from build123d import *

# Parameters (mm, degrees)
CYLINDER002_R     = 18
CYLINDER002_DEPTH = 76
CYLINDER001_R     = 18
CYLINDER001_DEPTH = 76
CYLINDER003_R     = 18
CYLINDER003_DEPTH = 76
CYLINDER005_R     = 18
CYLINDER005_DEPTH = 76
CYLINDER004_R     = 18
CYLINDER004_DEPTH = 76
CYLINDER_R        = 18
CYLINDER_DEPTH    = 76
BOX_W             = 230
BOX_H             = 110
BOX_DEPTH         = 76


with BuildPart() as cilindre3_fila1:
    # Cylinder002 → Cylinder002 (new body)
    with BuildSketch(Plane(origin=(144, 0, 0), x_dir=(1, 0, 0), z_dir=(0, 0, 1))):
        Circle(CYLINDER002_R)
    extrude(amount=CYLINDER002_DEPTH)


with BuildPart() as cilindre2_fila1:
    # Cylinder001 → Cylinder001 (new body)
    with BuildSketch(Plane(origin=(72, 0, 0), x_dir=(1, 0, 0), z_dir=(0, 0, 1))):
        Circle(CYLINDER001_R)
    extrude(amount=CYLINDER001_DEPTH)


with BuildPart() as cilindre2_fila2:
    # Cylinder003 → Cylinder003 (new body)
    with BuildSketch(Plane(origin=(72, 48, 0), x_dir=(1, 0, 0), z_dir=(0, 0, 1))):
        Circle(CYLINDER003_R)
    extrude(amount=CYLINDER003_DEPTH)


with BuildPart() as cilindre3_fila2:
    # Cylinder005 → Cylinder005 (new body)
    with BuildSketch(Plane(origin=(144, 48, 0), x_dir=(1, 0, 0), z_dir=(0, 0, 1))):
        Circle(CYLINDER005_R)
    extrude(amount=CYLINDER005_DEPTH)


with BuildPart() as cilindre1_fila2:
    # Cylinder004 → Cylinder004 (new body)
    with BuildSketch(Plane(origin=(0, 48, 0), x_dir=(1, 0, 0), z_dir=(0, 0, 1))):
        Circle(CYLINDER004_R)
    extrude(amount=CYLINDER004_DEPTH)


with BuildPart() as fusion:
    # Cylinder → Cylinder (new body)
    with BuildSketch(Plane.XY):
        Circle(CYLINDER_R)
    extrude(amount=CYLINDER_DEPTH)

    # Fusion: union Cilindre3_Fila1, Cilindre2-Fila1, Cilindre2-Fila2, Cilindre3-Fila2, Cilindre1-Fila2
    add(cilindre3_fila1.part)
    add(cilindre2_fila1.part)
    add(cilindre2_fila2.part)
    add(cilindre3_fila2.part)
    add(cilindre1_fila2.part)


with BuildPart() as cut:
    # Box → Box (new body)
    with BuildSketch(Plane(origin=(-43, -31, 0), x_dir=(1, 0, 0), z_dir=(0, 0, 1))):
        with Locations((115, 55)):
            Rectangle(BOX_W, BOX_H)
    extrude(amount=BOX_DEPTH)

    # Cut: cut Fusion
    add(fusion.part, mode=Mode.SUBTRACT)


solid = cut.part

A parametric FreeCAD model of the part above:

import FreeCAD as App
import Part
import Sketcher
from FreeCAD import Vector

doc = App.newDocument("Part")
params = doc.addObject("Spreadsheet::Sheet", "Params")
for row, (alias, value) in enumerate([
    ("sketch1_diameter", "36 mm"),
    ("pad1_length", "76 mm"),
    ("sketch2_diameter", "36 mm"),
    ("pad2_length", "76 mm"),
    ("sketch3_diameter", "36 mm"),
    ("pad3_length", "76 mm"),
    ("sketch4_diameter", "36 mm"),
    ("pad4_length", "76 mm"),
    ("sketch5_diameter", "36 mm"),
    ("pad5_length", "76 mm"),
    ("sketch6_diameter", "36 mm"),
    ("pad6_length", "76 mm"),
    ("sketch7_width", "230 mm"),
    ("sketch7_height", "110 mm"),
    ("pad7_length", "76 mm"),
], start=1):
    params.set(f"A{row}", alias)
    params.set(f"B{row}", "=" + value)
    params.setAlias(f"B{row}", alias)

body = doc.addObject("PartDesign::Body", "Body")

# Sketch on XY plane
sketch1 = doc.addObject("Sketcher::SketchObject", "Sketch")
body.addObject(sketch1)
sketch1.AttachmentSupport = (doc.XY_Plane, [""])
sketch1.MapMode = "FlatFace"
sketch1.addGeometry(Part.Circle(Vector(144, 0, 0), Vector(0, 0, 1), 18), False)
sketch1.addConstraint(Sketcher.Constraint("PointOnObject", 0, 3, -1))
sketch1.addConstraint(Sketcher.Constraint("Diameter", 0, 36.0))
sketch1.addConstraint(Sketcher.Constraint("DistanceX", -1, 1, 0, 3, 144.0))
sketch1.setExpression("Constraints[1]", "Params.sketch1_diameter")
pad1 = doc.addObject("PartDesign::Pad", "Pad")
body.addObject(pad1)
pad1.Profile = sketch1
pad1.setExpression("Length", "Params.pad1_length")
body2 = doc.addObject("PartDesign::Body", "Body001")

# Sketch on XY plane
sketch2 = doc.addObject("Sketcher::SketchObject", "Sketch001")
body2.addObject(sketch2)
sketch2.AttachmentSupport = (doc.getObject("XY_Plane001"), [""])
sketch2.MapMode = "FlatFace"
sketch2.addGeometry(Part.Circle(Vector(72, 0, 0), Vector(0, 0, 1), 18), False)
sketch2.addConstraint(Sketcher.Constraint("PointOnObject", 0, 3, -1))
sketch2.addConstraint(Sketcher.Constraint("Diameter", 0, 36.0))
sketch2.addConstraint(Sketcher.Constraint("DistanceX", -1, 1, 0, 3, 72.0))
sketch2.setExpression("Constraints[1]", "Params.sketch2_diameter")
pad2 = doc.addObject("PartDesign::Pad", "Pad001")
body2.addObject(pad2)
pad2.Profile = sketch2
pad2.setExpression("Length", "Params.pad2_length")
body3 = doc.addObject("PartDesign::Body", "Body002")

# Sketch on XY plane
sketch3 = doc.addObject("Sketcher::SketchObject", "Sketch002")
body3.addObject(sketch3)
sketch3.AttachmentSupport = (doc.getObject("XY_Plane002"), [""])
sketch3.MapMode = "FlatFace"
sketch3.addGeometry(Part.Circle(Vector(72, 48, 0), Vector(0, 0, 1), 18), False)
sketch3.addConstraint(Sketcher.Constraint("Diameter", 0, 36.0))
sketch3.addConstraint(Sketcher.Constraint("DistanceX", -1, 1, 0, 3, 72.0))
sketch3.addConstraint(Sketcher.Constraint("DistanceY", -1, 1, 0, 3, 48.0))
sketch3.setExpression("Constraints[0]", "Params.sketch3_diameter")
pad3 = doc.addObject("PartDesign::Pad", "Pad002")
body3.addObject(pad3)
pad3.Profile = sketch3
pad3.setExpression("Length", "Params.pad3_length")
body4 = doc.addObject("PartDesign::Body", "Body003")

# Sketch on XY plane
sketch4 = doc.addObject("Sketcher::SketchObject", "Sketch003")
body4.addObject(sketch4)
sketch4.AttachmentSupport = (doc.getObject("XY_Plane003"), [""])
sketch4.MapMode = "FlatFace"
sketch4.addGeometry(Part.Circle(Vector(144, 48, 0), Vector(0, 0, 1), 18), False)
sketch4.addConstraint(Sketcher.Constraint("Diameter", 0, 36.0))
sketch4.addConstraint(Sketcher.Constraint("DistanceX", -1, 1, 0, 3, 144.0))
sketch4.addConstraint(Sketcher.Constraint("DistanceY", -1, 1, 0, 3, 48.0))
sketch4.setExpression("Constraints[0]", "Params.sketch4_diameter")
pad4 = doc.addObject("PartDesign::Pad", "Pad003")
body4.addObject(pad4)
pad4.Profile = sketch4
pad4.setExpression("Length", "Params.pad4_length")
body5 = doc.addObject("PartDesign::Body", "Body004")

# Sketch on XY plane
sketch5 = doc.addObject("Sketcher::SketchObject", "Sketch004")
body5.addObject(sketch5)
sketch5.AttachmentSupport = (doc.getObject("XY_Plane004"), [""])
sketch5.MapMode = "FlatFace"
sketch5.addGeometry(Part.Circle(Vector(0, 48, 0), Vector(0, 0, 1), 18), False)
sketch5.addConstraint(Sketcher.Constraint("PointOnObject", 0, 3, -2))
sketch5.addConstraint(Sketcher.Constraint("Diameter", 0, 36.0))
sketch5.addConstraint(Sketcher.Constraint("DistanceY", -1, 1, 0, 3, 48.0))
sketch5.setExpression("Constraints[1]", "Params.sketch5_diameter")
pad5 = doc.addObject("PartDesign::Pad", "Pad004")
body5.addObject(pad5)
pad5.Profile = sketch5
pad5.setExpression("Length", "Params.pad5_length")
body6 = doc.addObject("PartDesign::Body", "Body005")
body6.AllowCompound = True

# Sketch on XY plane
sketch6 = doc.addObject("Sketcher::SketchObject", "Sketch005")
body6.addObject(sketch6)
sketch6.AttachmentSupport = (doc.getObject("XY_Plane005"), [""])
sketch6.MapMode = "FlatFace"
sketch6.addGeometry(Part.Circle(Vector(0, 0, 0), Vector(0, 0, 1), 18), False)
sketch6.addConstraint(Sketcher.Constraint("Coincident", 0, 3, -1, 1))
sketch6.addConstraint(Sketcher.Constraint("Diameter", 0, 36.0))
sketch6.setExpression("Constraints[1]", "Params.sketch6_diameter")
pad6 = doc.addObject("PartDesign::Pad", "Pad005")
body6.addObject(pad6)
pad6.Profile = sketch6
pad6.setExpression("Length", "Params.pad6_length")
doc.recompute()

boolean = doc.addObject("PartDesign::Boolean", "Boolean")
body6.addObject(boolean)
boolean.Type = "Fuse"
boolean.addObjects([body])
doc.recompute()

boolean2 = doc.addObject("PartDesign::Boolean", "Boolean001")
body6.addObject(boolean2)
boolean2.Type = "Fuse"
boolean2.addObjects([body2])
doc.recompute()

boolean3 = doc.addObject("PartDesign::Boolean", "Boolean002")
body6.addObject(boolean3)
boolean3.Type = "Fuse"
boolean3.addObjects([body3])
doc.recompute()

boolean4 = doc.addObject("PartDesign::Boolean", "Boolean003")
body6.addObject(boolean4)
boolean4.Type = "Fuse"
boolean4.addObjects([body4])
doc.recompute()

boolean5 = doc.addObject("PartDesign::Boolean", "Boolean004")
body6.addObject(boolean5)
boolean5.Type = "Fuse"
boolean5.addObjects([body5])
body7 = doc.addObject("PartDesign::Body", "Body006")

# Sketch on XY plane
sketch7 = doc.addObject("Sketcher::SketchObject", "Sketch006")
body7.addObject(sketch7)
sketch7.AttachmentSupport = (doc.getObject("XY_Plane006"), [""])
sketch7.MapMode = "FlatFace"
sketch7.addGeometry(Part.LineSegment(Vector(-43, 79, 0), Vector(-43, -31, 0)), False)
sketch7.addGeometry(Part.LineSegment(Vector(-43, -31, 0), Vector(187, -31, 0)), False)
sketch7.addGeometry(Part.LineSegment(Vector(187, -31, 0), Vector(187, 79, 0)), False)
sketch7.addGeometry(Part.LineSegment(Vector(187, 79, 0), Vector(-43, 79, 0)), False)
sketch7.addConstraint(Sketcher.Constraint("Coincident", 0, 2, 1, 1))
sketch7.addConstraint(Sketcher.Constraint("Coincident", 1, 2, 2, 1))
sketch7.addConstraint(Sketcher.Constraint("Coincident", 2, 2, 3, 1))
sketch7.addConstraint(Sketcher.Constraint("Coincident", 3, 2, 0, 1))
sketch7.addConstraint(Sketcher.Constraint("Vertical", 0))
sketch7.addConstraint(Sketcher.Constraint("Horizontal", 1))
sketch7.addConstraint(Sketcher.Constraint("Vertical", 2))
sketch7.addConstraint(Sketcher.Constraint("Horizontal", 3))
sketch7.addConstraint(Sketcher.Constraint("DistanceX", 1, 1, 1, 2, 230.0))
sketch7.addConstraint(Sketcher.Constraint("DistanceY", 0, 2, 0, 1, 110.0))
sketch7.addConstraint(Sketcher.Constraint("DistanceX", 0, 2, -1, 1, 43.0))
sketch7.addConstraint(Sketcher.Constraint("DistanceY", 0, 2, -1, 1, 31.0))
sketch7.setExpression("Constraints[8]", "Params.sketch7_width")
sketch7.setExpression("Constraints[9]", "Params.sketch7_height")
pad7 = doc.addObject("PartDesign::Pad", "Pad006")
body7.addObject(pad7)
pad7.Profile = sketch7
pad7.setExpression("Length", "Params.pad7_length")
doc.recompute()

boolean6 = doc.addObject("PartDesign::Boolean", "Boolean005")
body7.addObject(boolean6)
boolean6.Type = "Cut"
boolean6.addObjects([body6])

doc.recompute()
